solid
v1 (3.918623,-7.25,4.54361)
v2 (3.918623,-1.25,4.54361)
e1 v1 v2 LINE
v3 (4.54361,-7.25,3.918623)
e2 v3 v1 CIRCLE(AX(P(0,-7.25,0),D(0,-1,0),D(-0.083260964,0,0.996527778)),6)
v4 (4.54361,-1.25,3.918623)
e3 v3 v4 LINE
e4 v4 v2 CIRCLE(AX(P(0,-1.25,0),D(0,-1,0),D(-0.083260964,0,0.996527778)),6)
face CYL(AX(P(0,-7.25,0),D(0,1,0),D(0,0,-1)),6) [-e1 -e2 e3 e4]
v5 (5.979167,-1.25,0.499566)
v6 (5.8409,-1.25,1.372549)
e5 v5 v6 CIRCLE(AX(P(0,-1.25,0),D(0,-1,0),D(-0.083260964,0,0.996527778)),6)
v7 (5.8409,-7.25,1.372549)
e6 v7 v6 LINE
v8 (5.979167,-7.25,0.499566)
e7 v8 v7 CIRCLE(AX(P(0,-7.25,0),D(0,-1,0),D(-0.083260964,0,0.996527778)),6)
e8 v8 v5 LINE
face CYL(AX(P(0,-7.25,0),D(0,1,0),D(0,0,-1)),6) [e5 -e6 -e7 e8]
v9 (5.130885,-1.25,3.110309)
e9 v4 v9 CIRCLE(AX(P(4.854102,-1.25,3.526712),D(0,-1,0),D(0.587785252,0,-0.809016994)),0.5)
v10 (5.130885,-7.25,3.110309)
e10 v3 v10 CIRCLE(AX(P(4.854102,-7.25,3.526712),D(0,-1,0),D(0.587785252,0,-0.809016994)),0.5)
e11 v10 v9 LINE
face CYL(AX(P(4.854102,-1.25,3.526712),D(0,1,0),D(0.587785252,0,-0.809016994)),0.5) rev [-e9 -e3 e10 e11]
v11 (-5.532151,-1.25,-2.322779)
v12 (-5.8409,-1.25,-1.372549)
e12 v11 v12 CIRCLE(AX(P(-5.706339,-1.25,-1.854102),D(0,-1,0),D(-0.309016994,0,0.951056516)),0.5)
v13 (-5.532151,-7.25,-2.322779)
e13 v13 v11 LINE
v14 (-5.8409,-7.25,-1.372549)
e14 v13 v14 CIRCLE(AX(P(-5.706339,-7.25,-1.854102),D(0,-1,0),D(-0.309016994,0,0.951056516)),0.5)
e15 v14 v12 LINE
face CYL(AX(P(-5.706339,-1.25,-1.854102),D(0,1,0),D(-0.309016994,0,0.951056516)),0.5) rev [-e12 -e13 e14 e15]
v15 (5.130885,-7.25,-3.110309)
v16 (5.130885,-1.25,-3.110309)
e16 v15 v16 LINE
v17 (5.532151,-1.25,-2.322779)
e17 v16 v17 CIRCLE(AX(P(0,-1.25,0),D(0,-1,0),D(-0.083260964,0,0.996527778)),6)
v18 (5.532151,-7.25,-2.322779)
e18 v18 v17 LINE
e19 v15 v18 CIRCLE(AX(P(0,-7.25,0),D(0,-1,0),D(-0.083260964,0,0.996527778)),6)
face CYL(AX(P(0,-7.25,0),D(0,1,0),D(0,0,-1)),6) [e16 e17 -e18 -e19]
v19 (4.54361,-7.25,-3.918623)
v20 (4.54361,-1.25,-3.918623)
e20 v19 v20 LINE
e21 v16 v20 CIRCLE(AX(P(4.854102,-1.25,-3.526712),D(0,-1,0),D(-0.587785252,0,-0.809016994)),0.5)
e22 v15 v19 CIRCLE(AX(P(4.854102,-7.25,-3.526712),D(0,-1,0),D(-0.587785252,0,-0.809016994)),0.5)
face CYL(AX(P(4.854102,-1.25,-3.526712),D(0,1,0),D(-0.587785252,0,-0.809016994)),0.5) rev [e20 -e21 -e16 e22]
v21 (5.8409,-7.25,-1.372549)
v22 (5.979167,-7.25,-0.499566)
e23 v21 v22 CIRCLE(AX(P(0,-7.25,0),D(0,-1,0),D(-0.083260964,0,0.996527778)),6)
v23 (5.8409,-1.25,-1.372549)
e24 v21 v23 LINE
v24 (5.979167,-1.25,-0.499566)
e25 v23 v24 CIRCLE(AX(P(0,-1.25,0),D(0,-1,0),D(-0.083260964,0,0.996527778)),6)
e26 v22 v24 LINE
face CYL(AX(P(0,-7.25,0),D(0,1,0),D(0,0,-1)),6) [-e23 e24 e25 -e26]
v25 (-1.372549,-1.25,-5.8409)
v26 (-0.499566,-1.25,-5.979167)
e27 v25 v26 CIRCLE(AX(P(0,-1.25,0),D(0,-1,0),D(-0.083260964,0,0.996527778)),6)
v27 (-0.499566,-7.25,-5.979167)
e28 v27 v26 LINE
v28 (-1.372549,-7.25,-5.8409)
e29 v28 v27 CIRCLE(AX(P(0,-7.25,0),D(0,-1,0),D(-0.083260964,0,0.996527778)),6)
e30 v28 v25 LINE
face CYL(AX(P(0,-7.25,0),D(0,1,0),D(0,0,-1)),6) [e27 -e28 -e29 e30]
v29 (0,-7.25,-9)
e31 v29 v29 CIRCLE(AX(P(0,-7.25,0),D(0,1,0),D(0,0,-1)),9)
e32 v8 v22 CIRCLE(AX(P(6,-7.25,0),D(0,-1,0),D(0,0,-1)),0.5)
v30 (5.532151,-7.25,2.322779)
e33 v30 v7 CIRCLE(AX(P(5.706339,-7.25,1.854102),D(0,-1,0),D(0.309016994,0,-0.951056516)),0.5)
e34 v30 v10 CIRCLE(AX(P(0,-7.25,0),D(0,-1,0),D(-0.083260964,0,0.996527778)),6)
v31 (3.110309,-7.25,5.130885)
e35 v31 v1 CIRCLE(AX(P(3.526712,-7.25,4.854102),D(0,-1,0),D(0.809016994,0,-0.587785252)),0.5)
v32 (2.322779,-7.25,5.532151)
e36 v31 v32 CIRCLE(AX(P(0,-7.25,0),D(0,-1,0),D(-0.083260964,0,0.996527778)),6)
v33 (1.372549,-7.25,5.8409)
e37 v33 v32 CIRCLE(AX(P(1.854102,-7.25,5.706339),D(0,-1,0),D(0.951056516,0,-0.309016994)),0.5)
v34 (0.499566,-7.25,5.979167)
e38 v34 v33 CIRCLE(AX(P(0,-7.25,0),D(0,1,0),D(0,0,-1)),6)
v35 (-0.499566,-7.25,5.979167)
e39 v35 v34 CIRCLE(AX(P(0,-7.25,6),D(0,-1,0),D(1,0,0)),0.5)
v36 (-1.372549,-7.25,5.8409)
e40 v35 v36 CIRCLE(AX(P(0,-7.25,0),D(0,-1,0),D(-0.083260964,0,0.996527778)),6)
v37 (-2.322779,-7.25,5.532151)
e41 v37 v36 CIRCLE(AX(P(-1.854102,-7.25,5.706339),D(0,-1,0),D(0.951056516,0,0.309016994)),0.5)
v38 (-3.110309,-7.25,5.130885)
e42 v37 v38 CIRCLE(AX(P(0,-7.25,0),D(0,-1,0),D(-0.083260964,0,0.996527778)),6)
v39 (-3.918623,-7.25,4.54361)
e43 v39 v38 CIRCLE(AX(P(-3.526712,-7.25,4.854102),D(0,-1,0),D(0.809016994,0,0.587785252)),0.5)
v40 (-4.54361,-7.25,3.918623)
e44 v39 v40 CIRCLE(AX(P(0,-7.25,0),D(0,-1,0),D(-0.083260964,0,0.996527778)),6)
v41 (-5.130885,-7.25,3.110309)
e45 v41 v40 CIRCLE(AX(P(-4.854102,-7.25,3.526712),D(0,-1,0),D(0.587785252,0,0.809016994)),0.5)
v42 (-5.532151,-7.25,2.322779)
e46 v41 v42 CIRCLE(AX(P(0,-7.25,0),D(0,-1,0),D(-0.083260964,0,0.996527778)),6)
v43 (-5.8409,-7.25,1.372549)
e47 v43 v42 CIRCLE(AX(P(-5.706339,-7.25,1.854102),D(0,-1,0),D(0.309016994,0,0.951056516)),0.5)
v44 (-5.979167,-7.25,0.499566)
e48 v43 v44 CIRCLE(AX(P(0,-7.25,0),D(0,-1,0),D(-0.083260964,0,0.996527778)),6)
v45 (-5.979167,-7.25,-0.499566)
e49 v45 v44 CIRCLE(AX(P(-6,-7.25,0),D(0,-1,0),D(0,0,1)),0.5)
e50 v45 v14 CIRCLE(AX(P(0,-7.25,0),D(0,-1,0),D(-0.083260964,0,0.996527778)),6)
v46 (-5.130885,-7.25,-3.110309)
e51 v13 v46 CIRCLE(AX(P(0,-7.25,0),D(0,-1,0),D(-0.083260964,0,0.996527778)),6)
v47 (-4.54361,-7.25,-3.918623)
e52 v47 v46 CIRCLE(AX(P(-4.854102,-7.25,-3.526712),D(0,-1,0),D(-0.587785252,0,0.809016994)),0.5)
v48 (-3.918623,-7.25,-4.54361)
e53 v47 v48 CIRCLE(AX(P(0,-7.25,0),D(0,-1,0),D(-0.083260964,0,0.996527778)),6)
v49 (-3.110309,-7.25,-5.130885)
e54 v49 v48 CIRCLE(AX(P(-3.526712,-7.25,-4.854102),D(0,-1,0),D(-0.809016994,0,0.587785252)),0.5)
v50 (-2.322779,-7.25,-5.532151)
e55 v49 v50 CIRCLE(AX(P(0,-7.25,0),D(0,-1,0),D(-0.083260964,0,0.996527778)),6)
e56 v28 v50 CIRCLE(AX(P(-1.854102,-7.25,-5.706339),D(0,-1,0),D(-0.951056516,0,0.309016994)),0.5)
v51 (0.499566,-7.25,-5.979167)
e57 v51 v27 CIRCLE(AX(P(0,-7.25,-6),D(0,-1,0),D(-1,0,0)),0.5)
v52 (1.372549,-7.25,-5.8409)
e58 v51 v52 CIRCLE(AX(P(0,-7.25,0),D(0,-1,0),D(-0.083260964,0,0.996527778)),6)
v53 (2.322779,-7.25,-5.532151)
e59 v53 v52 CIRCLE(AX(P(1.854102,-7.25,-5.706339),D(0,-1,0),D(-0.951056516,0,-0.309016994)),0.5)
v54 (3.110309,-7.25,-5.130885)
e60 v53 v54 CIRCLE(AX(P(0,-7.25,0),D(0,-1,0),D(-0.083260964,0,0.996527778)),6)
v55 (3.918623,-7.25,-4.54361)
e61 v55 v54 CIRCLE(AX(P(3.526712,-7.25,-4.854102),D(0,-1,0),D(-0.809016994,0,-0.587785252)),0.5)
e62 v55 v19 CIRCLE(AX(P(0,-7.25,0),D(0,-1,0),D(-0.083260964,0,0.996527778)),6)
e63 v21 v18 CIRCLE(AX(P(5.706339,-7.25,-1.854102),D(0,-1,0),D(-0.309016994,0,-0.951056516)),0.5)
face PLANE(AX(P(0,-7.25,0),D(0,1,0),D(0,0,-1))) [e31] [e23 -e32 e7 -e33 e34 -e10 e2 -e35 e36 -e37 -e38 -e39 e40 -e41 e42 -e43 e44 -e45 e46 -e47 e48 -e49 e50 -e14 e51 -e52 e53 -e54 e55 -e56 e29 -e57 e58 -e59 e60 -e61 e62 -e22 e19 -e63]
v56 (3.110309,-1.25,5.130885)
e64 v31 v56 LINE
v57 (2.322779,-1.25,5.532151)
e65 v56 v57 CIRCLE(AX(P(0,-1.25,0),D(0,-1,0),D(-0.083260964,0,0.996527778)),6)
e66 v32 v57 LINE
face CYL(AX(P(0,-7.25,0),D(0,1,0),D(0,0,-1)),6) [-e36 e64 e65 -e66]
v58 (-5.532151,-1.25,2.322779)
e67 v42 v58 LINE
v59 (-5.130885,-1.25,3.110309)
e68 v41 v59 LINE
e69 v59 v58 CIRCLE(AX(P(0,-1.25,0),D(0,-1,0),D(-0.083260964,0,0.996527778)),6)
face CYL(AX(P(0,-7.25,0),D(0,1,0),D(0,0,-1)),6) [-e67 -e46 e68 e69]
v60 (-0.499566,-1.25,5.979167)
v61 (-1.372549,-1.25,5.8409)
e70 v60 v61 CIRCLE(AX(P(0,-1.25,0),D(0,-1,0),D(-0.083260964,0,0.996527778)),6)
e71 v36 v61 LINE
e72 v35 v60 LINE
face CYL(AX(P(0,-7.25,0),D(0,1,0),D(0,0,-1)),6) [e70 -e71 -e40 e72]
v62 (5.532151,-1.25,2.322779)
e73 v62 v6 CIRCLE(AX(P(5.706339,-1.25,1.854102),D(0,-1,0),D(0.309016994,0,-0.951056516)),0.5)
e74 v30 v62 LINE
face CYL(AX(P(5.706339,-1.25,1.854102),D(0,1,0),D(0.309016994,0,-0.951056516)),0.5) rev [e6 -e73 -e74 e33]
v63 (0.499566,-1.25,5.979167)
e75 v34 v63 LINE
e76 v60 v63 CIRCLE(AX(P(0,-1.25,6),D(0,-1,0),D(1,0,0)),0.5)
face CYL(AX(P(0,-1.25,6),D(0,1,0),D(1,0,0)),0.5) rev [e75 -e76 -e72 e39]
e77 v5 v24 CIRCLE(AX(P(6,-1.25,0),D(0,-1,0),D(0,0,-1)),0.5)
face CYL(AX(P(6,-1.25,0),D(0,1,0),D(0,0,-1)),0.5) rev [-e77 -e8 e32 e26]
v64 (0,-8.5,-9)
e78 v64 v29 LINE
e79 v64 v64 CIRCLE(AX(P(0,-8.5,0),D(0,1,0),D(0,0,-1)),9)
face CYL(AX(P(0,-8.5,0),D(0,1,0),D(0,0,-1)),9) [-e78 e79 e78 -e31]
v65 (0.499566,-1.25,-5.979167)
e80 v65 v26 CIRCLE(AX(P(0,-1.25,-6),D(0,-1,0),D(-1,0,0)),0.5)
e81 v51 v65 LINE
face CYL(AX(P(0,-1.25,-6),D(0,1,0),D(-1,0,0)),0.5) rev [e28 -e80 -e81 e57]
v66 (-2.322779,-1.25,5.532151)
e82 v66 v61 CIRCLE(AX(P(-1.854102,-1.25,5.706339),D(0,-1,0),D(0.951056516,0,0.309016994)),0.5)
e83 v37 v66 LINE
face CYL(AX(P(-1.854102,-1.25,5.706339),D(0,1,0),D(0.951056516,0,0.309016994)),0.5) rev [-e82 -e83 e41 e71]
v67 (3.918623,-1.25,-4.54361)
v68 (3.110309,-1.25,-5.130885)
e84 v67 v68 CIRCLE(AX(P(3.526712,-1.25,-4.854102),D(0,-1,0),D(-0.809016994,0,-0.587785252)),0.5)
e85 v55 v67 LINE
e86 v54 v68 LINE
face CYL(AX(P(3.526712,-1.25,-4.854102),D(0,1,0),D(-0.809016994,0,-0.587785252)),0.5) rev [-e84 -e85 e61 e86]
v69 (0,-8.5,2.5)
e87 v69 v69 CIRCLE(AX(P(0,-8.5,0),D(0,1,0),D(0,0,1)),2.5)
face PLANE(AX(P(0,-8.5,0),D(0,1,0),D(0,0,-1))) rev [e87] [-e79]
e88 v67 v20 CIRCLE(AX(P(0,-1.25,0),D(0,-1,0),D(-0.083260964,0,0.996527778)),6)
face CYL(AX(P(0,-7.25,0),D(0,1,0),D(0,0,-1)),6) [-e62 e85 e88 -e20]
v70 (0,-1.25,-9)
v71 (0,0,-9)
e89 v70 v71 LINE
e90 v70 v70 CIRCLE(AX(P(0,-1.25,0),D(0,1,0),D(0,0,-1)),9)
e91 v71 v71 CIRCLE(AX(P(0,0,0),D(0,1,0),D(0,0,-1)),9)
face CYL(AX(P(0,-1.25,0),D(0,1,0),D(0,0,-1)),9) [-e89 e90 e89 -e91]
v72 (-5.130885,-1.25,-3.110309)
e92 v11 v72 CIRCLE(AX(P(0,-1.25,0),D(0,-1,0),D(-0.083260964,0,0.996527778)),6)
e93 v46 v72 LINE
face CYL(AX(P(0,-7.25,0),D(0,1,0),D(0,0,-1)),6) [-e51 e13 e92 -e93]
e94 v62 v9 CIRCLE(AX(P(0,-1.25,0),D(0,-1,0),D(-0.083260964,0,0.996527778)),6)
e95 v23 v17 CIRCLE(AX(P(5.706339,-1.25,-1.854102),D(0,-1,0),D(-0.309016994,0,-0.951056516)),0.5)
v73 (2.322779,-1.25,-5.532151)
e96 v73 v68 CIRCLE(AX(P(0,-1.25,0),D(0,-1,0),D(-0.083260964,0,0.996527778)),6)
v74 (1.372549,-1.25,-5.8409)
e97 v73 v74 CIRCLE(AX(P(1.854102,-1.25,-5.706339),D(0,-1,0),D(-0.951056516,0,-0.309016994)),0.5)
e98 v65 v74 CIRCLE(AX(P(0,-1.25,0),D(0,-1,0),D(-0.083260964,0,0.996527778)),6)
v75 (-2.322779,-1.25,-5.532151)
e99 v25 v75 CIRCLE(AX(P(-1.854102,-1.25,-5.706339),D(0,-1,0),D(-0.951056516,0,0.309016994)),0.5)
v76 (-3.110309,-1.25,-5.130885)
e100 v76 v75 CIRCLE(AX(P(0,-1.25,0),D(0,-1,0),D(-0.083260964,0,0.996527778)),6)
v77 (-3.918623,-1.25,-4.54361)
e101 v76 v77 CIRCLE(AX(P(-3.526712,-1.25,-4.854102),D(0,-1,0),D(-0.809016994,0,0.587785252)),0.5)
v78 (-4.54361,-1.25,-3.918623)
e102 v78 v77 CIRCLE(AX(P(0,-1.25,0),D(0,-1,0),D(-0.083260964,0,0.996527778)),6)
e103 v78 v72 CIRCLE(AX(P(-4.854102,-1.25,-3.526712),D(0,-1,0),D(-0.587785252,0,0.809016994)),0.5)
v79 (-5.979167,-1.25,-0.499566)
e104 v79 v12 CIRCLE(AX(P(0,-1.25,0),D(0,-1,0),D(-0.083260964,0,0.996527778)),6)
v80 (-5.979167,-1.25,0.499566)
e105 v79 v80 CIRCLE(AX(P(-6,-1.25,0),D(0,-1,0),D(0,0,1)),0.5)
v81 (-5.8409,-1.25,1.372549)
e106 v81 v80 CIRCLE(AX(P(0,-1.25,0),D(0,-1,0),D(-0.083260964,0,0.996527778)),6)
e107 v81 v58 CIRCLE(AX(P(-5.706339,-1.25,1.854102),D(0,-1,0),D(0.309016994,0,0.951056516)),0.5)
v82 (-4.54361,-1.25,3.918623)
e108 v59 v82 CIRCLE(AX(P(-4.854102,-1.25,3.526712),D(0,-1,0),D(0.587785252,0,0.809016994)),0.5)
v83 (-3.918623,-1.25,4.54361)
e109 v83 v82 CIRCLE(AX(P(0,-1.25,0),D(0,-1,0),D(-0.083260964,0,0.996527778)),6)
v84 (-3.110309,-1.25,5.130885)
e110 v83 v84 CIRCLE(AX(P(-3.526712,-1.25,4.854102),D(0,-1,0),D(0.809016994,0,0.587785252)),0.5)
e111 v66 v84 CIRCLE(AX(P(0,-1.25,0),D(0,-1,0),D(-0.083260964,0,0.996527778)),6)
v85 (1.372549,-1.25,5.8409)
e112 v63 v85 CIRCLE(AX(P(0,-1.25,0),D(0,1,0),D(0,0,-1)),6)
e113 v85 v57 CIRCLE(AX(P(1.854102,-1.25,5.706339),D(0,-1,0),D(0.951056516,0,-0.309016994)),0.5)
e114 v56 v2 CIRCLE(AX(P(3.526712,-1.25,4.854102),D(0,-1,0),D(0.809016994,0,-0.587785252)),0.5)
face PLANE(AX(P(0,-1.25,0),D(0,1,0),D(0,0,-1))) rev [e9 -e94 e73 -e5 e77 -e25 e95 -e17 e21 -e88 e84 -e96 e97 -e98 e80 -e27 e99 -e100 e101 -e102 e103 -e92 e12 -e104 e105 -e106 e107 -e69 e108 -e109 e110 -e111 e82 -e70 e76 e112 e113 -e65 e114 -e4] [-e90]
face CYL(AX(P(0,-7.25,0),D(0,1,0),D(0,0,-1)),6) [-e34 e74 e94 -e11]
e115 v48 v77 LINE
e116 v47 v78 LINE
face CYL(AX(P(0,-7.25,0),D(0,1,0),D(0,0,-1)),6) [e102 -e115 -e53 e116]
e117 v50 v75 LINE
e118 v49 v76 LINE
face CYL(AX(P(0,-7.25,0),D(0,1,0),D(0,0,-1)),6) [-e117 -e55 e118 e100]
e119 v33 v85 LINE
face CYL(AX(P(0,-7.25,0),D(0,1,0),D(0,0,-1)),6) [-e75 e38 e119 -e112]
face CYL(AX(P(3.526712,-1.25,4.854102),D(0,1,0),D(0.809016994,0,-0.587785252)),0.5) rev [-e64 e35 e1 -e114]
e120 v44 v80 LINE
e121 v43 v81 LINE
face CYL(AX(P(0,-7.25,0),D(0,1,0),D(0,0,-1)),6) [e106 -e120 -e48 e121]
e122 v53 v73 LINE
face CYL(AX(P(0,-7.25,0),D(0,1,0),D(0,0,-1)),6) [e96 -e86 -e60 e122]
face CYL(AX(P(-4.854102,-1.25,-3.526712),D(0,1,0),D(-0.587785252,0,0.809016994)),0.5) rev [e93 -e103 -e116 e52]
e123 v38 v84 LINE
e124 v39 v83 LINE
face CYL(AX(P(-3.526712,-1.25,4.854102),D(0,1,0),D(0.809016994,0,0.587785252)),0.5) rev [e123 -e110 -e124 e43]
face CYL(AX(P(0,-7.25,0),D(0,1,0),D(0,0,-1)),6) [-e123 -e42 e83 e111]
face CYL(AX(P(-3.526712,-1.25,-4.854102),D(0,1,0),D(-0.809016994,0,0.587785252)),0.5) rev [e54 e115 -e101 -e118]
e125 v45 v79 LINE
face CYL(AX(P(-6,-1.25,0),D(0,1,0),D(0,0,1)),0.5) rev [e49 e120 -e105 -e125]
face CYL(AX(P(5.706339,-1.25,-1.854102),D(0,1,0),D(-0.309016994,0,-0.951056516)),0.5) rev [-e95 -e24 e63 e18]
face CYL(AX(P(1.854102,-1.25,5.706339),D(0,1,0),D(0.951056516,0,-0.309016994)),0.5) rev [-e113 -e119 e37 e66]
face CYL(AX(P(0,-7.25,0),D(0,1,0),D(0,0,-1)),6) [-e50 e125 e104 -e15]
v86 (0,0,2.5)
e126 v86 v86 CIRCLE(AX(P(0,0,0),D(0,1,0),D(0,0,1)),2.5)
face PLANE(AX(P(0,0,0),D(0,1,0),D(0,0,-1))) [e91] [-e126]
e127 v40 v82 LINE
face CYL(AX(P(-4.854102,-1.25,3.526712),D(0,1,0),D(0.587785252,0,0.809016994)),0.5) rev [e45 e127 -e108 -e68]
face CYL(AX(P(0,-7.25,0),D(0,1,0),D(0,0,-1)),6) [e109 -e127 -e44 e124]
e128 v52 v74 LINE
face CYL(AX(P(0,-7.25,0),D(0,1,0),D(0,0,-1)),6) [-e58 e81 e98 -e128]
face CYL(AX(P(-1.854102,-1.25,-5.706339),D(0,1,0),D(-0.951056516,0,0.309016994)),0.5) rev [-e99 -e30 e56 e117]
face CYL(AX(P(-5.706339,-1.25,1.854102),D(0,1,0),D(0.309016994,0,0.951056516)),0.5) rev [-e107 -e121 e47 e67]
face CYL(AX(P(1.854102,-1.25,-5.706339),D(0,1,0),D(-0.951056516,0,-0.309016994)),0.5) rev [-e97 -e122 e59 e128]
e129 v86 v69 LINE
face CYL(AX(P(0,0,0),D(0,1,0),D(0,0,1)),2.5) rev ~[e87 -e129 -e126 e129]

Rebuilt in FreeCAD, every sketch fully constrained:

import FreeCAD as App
import Part
import Sketcher
from FreeCAD import Vector


def add_polygon(sketch, points):
    """Adds a closed chain of lines whose ends are joined by coincident constraints."""
    first, n = sketch.GeometryCount, len(points)
    for a, b in zip(points, points[1:] + points[:1]):
        sketch.addGeometry(Part.LineSegment(App.Vector(*a, 0), App.Vector(*b, 0)), False)
    for i in range(n):
        sketch.addConstraint(Sketcher.Constraint("Coincident", first + i, 2, first + (i + 1) % n, 1))

doc = App.newDocument("Part")
body = doc.addObject("PartDesign::Body", "Body")

sketch1 = doc.addObject("Sketcher::SketchObject", "Sketch")
body.addObject(sketch1)
sketch1.AttachmentSupport = (doc.XY_Plane, [""])
sketch1.MapMode = "FlatFace"
add_polygon(sketch1, [(-9, -8.5), (0, -8.5), (0, 0), (-9, 0), (-9, -1.25), (-6, -1.25), (-6, -7.25), (-9, -7.25)])
sketch1.addConstraint([
    Sketcher.Constraint("Horizontal", 0),
    Sketcher.Constraint("Vertical", 1),
    Sketcher.Constraint("Horizontal", 2),
    Sketcher.Constraint("Vertical", 3),
    Sketcher.Constraint("Horizontal", 4),
    Sketcher.Constraint("Vertical", 5),
    Sketcher.Constraint("Horizontal", 6),
    Sketcher.Constraint("Vertical", 7),
    Sketcher.Constraint("Coincident", 1, 2, -1, 1),
    Sketcher.Constraint("Vertical", 3, 2, 6, 2),
    Sketcher.Constraint("Equal", 3, 7),
    Sketcher.Constraint("DistanceX", 0, 1, 0, 2, 9.0),
    Sketcher.Constraint("DistanceX", 4, 1, 4, 2, 3.0),
    Sketcher.Constraint("DistanceY", 5, 2, 5, 1, 6.0),
    Sketcher.Constraint("DistanceY", 1, 1, 1, 2, 8.5),
])
revolution = doc.addObject("PartDesign::Revolution", "Revolution")
body.addObject(revolution)
revolution.Profile = sketch1
revolution.ReferenceAxis = (sketch1, ["V_Axis"])
revolution.Angle = 360

sketch2 = doc.addObject("Sketcher::SketchObject", "Sketch001")
body.addObject(sketch2)
sketch2.AttachmentSupport = (doc.XZ_Plane, [""])
sketch2.MapMode = "FlatFace"
sketch2.addGeometry(Part.Circle(Vector(0, 0, 0), Vector(0, 0, 1), 2.5), False)
sketch2.addConstraint([
    Sketcher.Constraint("Coincident", 0, 3, -1, 1),
    Sketcher.Constraint("Diameter", 0, 5.0),
])
pocket1 = doc.addObject("PartDesign::Pocket", "Pocket")
body.addObject(pocket1)
pocket1.Profile = sketch2
pocket1.Length = 10
pocket1.Reversed = True

sketch3 = doc.addObject("Sketcher::SketchObject", "Sketch002")
body.addObject(sketch3)
sketch3.AttachmentSupport = (doc.XZ_Plane, [""])
sketch3.MapMode = "FlatFace"
sketch3.AttachmentOffset = App.Placement(Vector(0, 0, 1.25), App.Rotation())
sketch3.addGeometry(Part.Circle(Vector(0, 6, 0), Vector(0, 0, 1), 0.5), False)
sketch3.addConstraint([
    Sketcher.Constraint("PointOnObject", 0, 3, -2),
    Sketcher.Constraint("Diameter", 0, 1.0),
    Sketcher.Constraint("DistanceY", -1, 1, 0, 3, 6.0),
])
pocket2 = doc.addObject("PartDesign::Pocket", "Pocket001")
body.addObject(pocket2)
pocket2.Profile = sketch3
pocket2.Length = 6
pocket2.Reversed = True
doc.recompute()

polarpattern = doc.addObject("PartDesign::PolarPattern", "PolarPattern")
body.addObject(polarpattern)
polarpattern.Originals = [pocket2]
polarpattern.Axis = (doc.Y_Axis, [""])
polarpattern.Angle = 360
polarpattern.Occurrences = 20
body.Tip = polarpattern

doc.recompute()
